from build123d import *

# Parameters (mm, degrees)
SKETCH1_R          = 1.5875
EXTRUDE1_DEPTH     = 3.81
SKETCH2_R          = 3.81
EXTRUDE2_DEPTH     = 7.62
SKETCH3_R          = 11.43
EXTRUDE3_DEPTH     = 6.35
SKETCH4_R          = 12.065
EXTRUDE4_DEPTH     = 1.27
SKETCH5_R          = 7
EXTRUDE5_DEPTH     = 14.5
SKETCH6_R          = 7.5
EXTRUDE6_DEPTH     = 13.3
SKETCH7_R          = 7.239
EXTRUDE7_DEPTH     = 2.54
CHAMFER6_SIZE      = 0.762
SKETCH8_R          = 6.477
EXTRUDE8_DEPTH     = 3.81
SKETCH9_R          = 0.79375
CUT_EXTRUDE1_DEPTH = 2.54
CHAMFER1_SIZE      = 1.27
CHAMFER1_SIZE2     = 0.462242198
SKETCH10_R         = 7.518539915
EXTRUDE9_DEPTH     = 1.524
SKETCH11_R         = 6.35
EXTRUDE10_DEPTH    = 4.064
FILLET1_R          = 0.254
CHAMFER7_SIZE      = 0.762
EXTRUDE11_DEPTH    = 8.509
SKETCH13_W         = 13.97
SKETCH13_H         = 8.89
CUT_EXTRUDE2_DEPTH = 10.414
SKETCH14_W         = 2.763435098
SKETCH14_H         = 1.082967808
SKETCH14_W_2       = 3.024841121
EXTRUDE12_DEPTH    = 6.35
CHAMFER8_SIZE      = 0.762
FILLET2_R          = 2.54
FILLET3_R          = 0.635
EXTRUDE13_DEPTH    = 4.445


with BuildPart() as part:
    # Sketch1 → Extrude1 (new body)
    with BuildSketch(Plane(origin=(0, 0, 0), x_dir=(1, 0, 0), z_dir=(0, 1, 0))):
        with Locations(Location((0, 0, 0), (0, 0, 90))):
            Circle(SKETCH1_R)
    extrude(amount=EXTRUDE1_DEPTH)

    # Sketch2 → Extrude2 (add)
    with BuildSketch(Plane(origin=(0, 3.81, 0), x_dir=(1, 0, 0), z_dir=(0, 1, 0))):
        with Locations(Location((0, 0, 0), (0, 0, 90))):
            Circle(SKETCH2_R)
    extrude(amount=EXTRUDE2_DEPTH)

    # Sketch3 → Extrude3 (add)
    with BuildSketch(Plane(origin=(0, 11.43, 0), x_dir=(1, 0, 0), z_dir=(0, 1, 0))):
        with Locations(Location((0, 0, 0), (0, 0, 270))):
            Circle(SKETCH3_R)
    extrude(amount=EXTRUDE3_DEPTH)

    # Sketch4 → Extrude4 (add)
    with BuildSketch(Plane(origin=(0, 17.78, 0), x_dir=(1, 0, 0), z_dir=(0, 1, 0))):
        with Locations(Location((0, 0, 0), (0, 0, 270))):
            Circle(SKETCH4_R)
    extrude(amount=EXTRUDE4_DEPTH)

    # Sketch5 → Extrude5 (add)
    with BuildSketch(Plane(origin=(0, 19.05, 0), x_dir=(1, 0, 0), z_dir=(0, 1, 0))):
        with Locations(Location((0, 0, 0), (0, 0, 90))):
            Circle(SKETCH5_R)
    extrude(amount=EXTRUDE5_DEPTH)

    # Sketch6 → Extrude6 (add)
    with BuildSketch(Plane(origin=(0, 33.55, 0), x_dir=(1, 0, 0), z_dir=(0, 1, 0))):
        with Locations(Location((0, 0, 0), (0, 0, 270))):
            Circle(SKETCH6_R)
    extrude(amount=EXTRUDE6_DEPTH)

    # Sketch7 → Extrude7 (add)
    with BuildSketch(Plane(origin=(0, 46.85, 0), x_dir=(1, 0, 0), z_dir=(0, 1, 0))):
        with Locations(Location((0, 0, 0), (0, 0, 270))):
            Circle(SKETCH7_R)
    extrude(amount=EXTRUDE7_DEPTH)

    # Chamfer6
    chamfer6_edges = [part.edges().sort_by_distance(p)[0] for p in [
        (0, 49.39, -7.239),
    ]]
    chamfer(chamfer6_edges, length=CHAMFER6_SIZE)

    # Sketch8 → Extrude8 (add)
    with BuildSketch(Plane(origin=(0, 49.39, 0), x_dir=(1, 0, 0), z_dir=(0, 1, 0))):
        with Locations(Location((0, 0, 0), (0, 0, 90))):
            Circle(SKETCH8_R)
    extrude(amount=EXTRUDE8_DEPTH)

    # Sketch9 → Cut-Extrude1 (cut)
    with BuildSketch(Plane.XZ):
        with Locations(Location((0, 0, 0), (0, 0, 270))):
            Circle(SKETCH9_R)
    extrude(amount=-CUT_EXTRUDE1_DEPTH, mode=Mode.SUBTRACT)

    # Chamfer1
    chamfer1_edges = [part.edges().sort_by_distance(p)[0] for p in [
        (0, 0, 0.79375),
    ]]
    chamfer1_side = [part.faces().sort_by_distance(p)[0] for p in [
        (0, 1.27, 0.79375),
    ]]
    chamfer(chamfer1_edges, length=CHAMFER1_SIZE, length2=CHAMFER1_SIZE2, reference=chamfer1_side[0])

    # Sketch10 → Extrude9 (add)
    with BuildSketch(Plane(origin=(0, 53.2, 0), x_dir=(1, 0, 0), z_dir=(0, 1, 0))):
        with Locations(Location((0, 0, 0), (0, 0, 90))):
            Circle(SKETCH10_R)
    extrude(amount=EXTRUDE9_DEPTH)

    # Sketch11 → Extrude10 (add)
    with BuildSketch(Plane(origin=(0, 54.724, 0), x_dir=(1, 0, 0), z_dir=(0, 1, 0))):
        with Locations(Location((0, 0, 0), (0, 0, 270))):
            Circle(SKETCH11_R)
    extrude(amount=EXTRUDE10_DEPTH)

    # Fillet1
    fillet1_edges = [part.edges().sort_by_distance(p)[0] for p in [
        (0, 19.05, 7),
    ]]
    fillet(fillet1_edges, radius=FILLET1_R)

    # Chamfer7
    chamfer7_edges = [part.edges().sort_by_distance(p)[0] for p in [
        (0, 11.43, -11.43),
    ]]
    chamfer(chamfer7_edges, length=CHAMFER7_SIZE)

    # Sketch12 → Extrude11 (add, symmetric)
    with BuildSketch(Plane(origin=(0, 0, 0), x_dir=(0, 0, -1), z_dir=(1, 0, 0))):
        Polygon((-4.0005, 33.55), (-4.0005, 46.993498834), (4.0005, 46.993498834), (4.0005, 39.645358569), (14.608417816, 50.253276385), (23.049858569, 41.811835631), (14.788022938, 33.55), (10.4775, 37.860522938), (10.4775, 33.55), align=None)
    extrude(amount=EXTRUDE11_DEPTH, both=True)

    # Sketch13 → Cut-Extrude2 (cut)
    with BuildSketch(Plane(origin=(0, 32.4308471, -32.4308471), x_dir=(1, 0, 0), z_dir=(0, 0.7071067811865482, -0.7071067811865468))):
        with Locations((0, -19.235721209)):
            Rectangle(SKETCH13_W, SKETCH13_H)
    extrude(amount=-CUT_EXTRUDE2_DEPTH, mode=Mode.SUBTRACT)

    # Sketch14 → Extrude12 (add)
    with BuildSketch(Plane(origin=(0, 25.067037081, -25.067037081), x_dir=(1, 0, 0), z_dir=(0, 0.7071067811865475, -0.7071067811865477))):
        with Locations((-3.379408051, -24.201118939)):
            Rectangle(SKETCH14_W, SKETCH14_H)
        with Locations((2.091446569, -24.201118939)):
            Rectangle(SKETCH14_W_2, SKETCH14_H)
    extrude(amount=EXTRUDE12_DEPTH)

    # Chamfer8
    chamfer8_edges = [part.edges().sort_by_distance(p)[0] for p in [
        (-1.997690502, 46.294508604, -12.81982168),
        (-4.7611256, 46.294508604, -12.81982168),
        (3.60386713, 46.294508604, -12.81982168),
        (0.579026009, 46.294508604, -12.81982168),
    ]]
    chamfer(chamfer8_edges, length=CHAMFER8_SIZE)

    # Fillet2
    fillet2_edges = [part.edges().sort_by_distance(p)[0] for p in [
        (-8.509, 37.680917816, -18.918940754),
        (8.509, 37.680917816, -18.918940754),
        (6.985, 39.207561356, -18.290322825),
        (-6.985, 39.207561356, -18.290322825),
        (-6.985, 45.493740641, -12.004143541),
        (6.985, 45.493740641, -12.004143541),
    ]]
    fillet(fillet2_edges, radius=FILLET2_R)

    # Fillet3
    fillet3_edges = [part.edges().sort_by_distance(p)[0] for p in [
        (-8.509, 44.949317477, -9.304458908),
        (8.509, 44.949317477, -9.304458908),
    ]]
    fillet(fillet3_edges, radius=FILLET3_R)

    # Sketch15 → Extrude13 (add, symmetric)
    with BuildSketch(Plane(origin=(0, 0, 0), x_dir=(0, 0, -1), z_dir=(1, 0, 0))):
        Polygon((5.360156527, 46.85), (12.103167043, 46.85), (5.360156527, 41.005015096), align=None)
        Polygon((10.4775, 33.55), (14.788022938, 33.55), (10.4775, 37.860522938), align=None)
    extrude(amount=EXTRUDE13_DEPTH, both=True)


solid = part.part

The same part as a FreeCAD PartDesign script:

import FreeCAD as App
import Part
import Sketcher

V = App.Vector
Q = App.Units.Quantity


def edges_at(feature, points):
    """Names of the edges that pass closest to the given points."""
    edges = feature.Shape.Edges
    near = lambda p: min(range(len(edges)), key=lambda i: edges[i].distToShape(Part.Vertex(*p))[0])
    return sorted({f"Edge{near(p) + 1}" for p in points})


def add_polygon(sketch, points):
    """Adds a closed chain of lines whose ends are joined by coincident constraints."""
    first, n = sketch.GeometryCount, len(points)
    for a, b in zip(points, points[1:] + points[:1]):
        sketch.addGeometry(Part.LineSegment(App.Vector(*a, 0), App.Vector(*b, 0)), False)
    for i in range(n):
        sketch.addConstraint(Sketcher.Constraint("Coincident", first + i, 2, first + (i + 1) % n, 1))

doc = App.newDocument("Part")
body = doc.addObject("PartDesign::Body", "Body")

sketch1 = doc.addObject("Sketcher::SketchObject", "Sketch")
body.addObject(sketch1)
sketch1.AttachmentSupport = (doc.XZ_Plane, [""])
sketch1.MapMode = "FlatFace"
sketch1.addGeometry(Part.Circle(V(0, 0, 0), V(0, 0, 1), 1.6), False)
sketch1.addConstraint(Sketcher.Constraint("Coincident", 0, 3, -1, 1))
sketch1.addConstraint(Sketcher.Constraint("Diameter", 0, Q("0.125 in")))
pad1 = doc.addObject("PartDesign::Pad", "Pad")
body.addObject(pad1)
pad1.Profile = sketch1
pad1.Length = Q("0.15 in")
pad1.Reversed = True

sketch2 = doc.addObject("Sketcher::SketchObject", "Sketch001")
body.addObject(sketch2)
sketch2.AttachmentSupport = (doc.XZ_Plane, [""])
sketch2.MapMode = "FlatFace"
sketch2.AttachmentOffset = App.Placement(V(0, 0, -0.15 * 25.4), App.Rotation())
sketch2.addGeometry(Part.Circle(V(0, 0, 0), V(0, 0, 1), 3.8), False)
sketch2.addConstraint(Sketcher.Constraint("Coincident", 0, 3, -1, 1))
sketch2.addConstraint(Sketcher.Constraint("Diameter", 0, Q("0.3 in")))
pad2 = doc.addObject("PartDesign::Pad", "Pad001")
body.addObject(pad2)
pad2.Profile = sketch2
pad2.Length = Q("0.3 in")
pad2.Reversed = True

sketch3 = doc.addObject("Sketcher::SketchObject", "Sketch002")
body.addObject(sketch3)
sketch3.AttachmentSupport = (doc.XZ_Plane, [""])
sketch3.MapMode = "FlatFace"
sketch3.AttachmentOffset = App.Placement(V(0, 0, -0.45 * 25.4), App.Rotation())
sketch3.addGeometry(Part.Circle(V(0, 0, 0), V(0, 0, 1), 11), False)
sketch3.addConstraint(Sketcher.Constraint("Coincident", 0, 3, -1, 1))
sketch3.addConstraint(Sketcher.Constraint("Diameter", 0, Q("0.9 in")))
pad3 = doc.addObject("PartDesign::Pad", "Pad002")
body.addObject(pad3)
pad3.Profile = sketch3
pad3.Length = Q("0.25 in")
pad3.Reversed = True

sketch4 = doc.addObject("Sketcher::SketchObject", "Sketch003")
body.addObject(sketch4)
sketch4.AttachmentSupport = (doc.XZ_Plane, [""])
sketch4.MapMode = "FlatFace"
sketch4.AttachmentOffset = App.Placement(V(0, 0, -0.7 * 25.4), App.Rotation())
sketch4.addGeometry(Part.Circle(V(0, 0, 0), V(0, 0, 1), 12), False)
sketch4.addConstraint(Sketcher.Constraint("Coincident", 0, 3, -1, 1))
sketch4.addConstraint(Sketcher.Constraint("Diameter", 0, Q("0.95 in")))
pad4 = doc.addObject("PartDesign::Pad", "Pad003")
body.addObject(pad4)
pad4.Profile = sketch4
pad4.Length = Q("0.05 in")
pad4.Reversed = True

sketch5 = doc.addObject("Sketcher::SketchObject", "Sketch004")
body.addObject(sketch5)
sketch5.AttachmentSupport = (doc.XZ_Plane, [""])
sketch5.MapMode = "FlatFace"
sketch5.AttachmentOffset = App.Placement(V(0, 0, -0.75 * 25.4), App.Rotation())
sketch5.addGeometry(Part.Circle(V(0, 0, 0), V(0, 0, 1), 7), False)
sketch5.addConstraint(Sketcher.Constraint("Coincident", 0, 3, -1, 1))
sketch5.addConstraint(Sketcher.Constraint("Diameter", 0, Q("14 mm")))
pad5 = doc.addObject("PartDesign::Pad", "Pad004")
body.addObject(pad5)
pad5.Profile = sketch5
pad5.Length = 14.5
pad5.Reversed = True

sketch6 = doc.addObject("Sketcher::SketchObject", "Sketch005")
body.addObject(sketch6)
sketch6.AttachmentSupport = (doc.XZ_Plane, [""])
sketch6.MapMode = "FlatFace"
sketch6.AttachmentOffset = App.Placement(V(0, 0, -33.55), App.Rotation())
sketch6.addGeometry(Part.Circle(V(0, 0, 0), V(0, 0, 1), 8), False)
sketch6.addConstraint(Sketcher.Constraint("Coincident", 0, 3, -1, 1))
sketch6.addConstraint(Sketcher.Constraint("Diameter", 0, Q("15 mm")))
pad6 = doc.addObject("PartDesign::Pad", "Pad005")
body.addObject(pad6)
pad6.Profile = sketch6
pad6.Length = 13.3
pad6.Reversed = True

sketch7 = doc.addObject("Sketcher::SketchObject", "Sketch006")
body.addObject(sketch7)
sketch7.AttachmentSupport = (doc.XZ_Plane, [""])
sketch7.MapMode = "FlatFace"
sketch7.AttachmentOffset = App.Placement(V(0, 0, -46.85), App.Rotation())
sketch7.addGeometry(Part.Circle(V(0, 0, 0), V(0, 0, 1), 7), False)
sketch7.addConstraint(Sketcher.Constraint("Coincident", 0, 3, -1, 1))
sketch7.addConstraint(Sketcher.Constraint("Diameter", 0, Q("0.57 in")))
pad7 = doc.addObject("PartDesign::Pad", "Pad006")
body.addObject(pad7)
pad7.Profile = sketch7
pad7.Length = Q("0.1 in")
pad7.Reversed = True
doc.recompute()

chamfer = doc.addObject("PartDesign::Chamfer", "Chamfer")
body.addObject(chamfer)
chamfer.Base = (pad7, edges_at(pad7, [(0, 49.39, -7.239)]))
chamfer.Size = Q("0.03 in")

sketch8 = doc.addObject("Sketcher::SketchObject", "Sketch007")
body.addObject(sketch8)
sketch8.AttachmentSupport = (doc.XZ_Plane, [""])
sketch8.MapMode = "FlatFace"
sketch8.AttachmentOffset = App.Placement(V(0, 0, -49.39), App.Rotation())
sketch8.addGeometry(Part.Circle(V(0, 0, 0), V(0, 0, 1), 6), False)
sketch8.addConstraint(Sketcher.Constraint("Coincident", 0, 3, -1, 1))
sketch8.addConstraint(Sketcher.Constraint("Diameter", 0, Q("0.51 in")))
pad8 = doc.addObject("PartDesign::Pad", "Pad007")
body.addObject(pad8)
pad8.Profile = sketch8
pad8.Length = Q("0.15 in")
pad8.Reversed = True

sketch9 = doc.addObject("Sketcher::SketchObject", "Sketch008")
body.addObject(sketch9)
sketch9.AttachmentSupport = (doc.XZ_Plane, [""])
sketch9.MapMode = "FlatFace"
sketch9.addGeometry(Part.Circle(V(0, 0, 0), V(0, 0, 1), 0.8), False)
sketch9.addConstraint(Sketcher.Constraint("Coincident", 0, 3, -1, 1))
sketch9.addConstraint(Sketcher.Constraint("Diameter", 0, Q("0.0625 in")))
pocket1 = doc.addObject("PartDesign::Pocket", "Pocket")
body.addObject(pocket1)
pocket1.Profile = sketch9
pocket1.Length = Q("0.1 in")
doc.recompute()

chamfer2 = doc.addObject("PartDesign::Chamfer", "Chamfer001")
body.addObject(chamfer2)
chamfer2.Base = (pocket1, edges_at(pocket1, [(0, 0, 0.794)]))
chamfer2.ChamferType = "Two distances"
chamfer2.Size = Q("0.05 in")
chamfer2.Size2 = 0.462242
chamfer2.FlipDirection = True

sketch10 = doc.addObject("Sketcher::SketchObject", "Sketch009")
body.addObject(sketch10)
sketch10.AttachmentSupport = (doc.XZ_Plane, [""])
sketch10.MapMode = "FlatFace"
sketch10.AttachmentOffset = App.Placement(V(0, 0, -53.2), App.Rotation())
sketch10.addGeometry(Part.Circle(V(0, 0, 0), V(0, 0, 1), 8), False)
sketch10.addConstraint(Sketcher.Constraint("Coincident", 0, 3, -1, 1))
sketch10.addConstraint(Sketcher.Constraint("Diameter", 0, Q("15.03708 mm")))
pad9 = doc.addObject("PartDesign::Pad", "Pad008")
body.addObject(pad9)
pad9.Profile = sketch10
pad9.Length = Q("0.06 in")
pad9.Reversed = True

sketch11 = doc.addObject("Sketcher::SketchObject", "Sketch010")
body.addObject(sketch11)
sketch11.AttachmentSupport = (doc.XZ_Plane, [""])
sketch11.MapMode = "FlatFace"
sketch11.AttachmentOffset = App.Placement(V(0, 0, -54.724), App.Rotation())
sketch11.addGeometry(Part.Circle(V(0, 0, 0), V(0, 0, 1), 6), False)
sketch11.addConstraint(Sketcher.Constraint("Coincident", 0, 3, -1, 1))
sketch11.addConstraint(Sketcher.Constraint("Diameter", 0, Q("0.5 in")))
pad10 = doc.addObject("PartDesign::Pad", "Pad009")
body.addObject(pad10)
pad10.Profile = sketch11
pad10.Length = Q("0.16 in")
pad10.Reversed = True
doc.recompute()

fillet = doc.addObject("PartDesign::Fillet", "Fillet")
body.addObject(fillet)
fillet.Base = (pad10, edges_at(pad10, [(0, 19.05, 7)]))
fillet.Radius = Q("0.01 in")
doc.recompute()

chamfer3 = doc.addObject("PartDesign::Chamfer", "Chamfer002")
body.addObject(chamfer3)
chamfer3.Base = (fillet, edges_at(fillet, [(0, 11.43, -11.43)]))
chamfer3.Size = Q("0.03 in")

sketch12 = doc.addObject("Sketcher::SketchObject", "Sketch011")
body.addObject(sketch12)
sketch12.AttachmentSupport = (doc.YZ_Plane, [""])
sketch12.MapMode = "FlatFace"
add_polygon(sketch12, [(47, 4), (33.5, 4), (33.5, -10.5), (37.9, -10.5), (33.5, -14.8), (41.8, -23), (50.3, -14.6), (39.6, -4), (47, -4)])
sketch12.addConstraint(Sketcher.Constraint("Horizontal", 0))
sketch12.addConstraint(Sketcher.Constraint("Vertical", 1))
sketch12.addConstraint(Sketcher.Constraint("Horizontal", 2))
sketch12.addConstraint(Sketcher.Constraint("Horizontal", 7))
sketch12.addConstraint(Sketcher.Constraint("Vertical", 8))
sketch12.addConstraint(Sketcher.Constraint("Perpendicular", 3, 4))
sketch12.addConstraint(Sketcher.Constraint("Perpendicular", 4, 5))
sketch12.addConstraint(Sketcher.Constraint("Perpendicular", 5, 6))
sketch12.addConstraint(Sketcher.Constraint("Vertical", 1, 2, 3, 2))
sketch12.addConstraint(Sketcher.Constraint("Angle", 3, Q("-135 deg")))
sketch12.addConstraint(Sketcher.Constraint("DistanceY", 1, 2, 1, 1, Q("0.57 in")))
sketch12.addConstraint(Sketcher.Constraint("Distance", 3, Q("0.24 in")))
sketch12.addConstraint(Sketcher.Constraint("Distance", 4, Q("0.46 in")))
sketch12.addConstraint(Sketcher.Constraint("Distance", 5, Q("0.47 in")))
sketch12.addConstraint(Sketcher.Constraint("DistanceY", 8, 1, 8, 2, Q("0.315 in")))
sketch12.addConstraint(Sketcher.Constraint("DistanceX", 0, 2, 0, 1, Q("13.443499 mm")))
sketch12.addConstraint(Sketcher.Constraint("DistanceY", -1, 1, 0, 2, Q("0.1575 in")))
sketch12.addConstraint(Sketcher.Constraint("DistanceX", -1, 1, 0, 2, Q("33.55 mm")))
pad11 = doc.addObject("PartDesign::Pad", "Pad010")
body.addObject(pad11)
pad11.Profile = sketch12
pad11.Length = Q("0.67 in")
pad11.Midplane = True

sketch13 = doc.addObject("Sketcher::SketchObject", "Sketch012")
body.addObject(sketch13)
sketch13.Placement = App.Placement(V(0, 32.430847, -32.430847), App.Rotation(V(1, 0, 0), V(0, -0.707106781, -0.707106781), V(0, 0.707106781, -0.707106781), "ZXY"))
add_polygon(sketch13, [(-7, -15), (-7, -24), (7, -24), (7, -15)])
sketch13.addConstraint(Sketcher.Constraint("Vertical", 0))
sketch13.addConstraint(Sketcher.Constraint("Horizontal", 1))
sketch13.addConstraint(Sketcher.Constraint("Vertical", 2))
sketch13.addConstraint(Sketcher.Constraint("Horizontal", 3))
sketch13.addConstraint(Sketcher.Constraint("DistanceX", 1, 1, 1, 2, Q("0.55 in")))
sketch13.addConstraint(Sketcher.Constraint("DistanceY", 0, 2, 0, 1, Q("0.35 in")))
sketch13.addConstraint(Sketcher.Constraint("DistanceX", 0, 2, -1, 1, Q("0.275 in")))
sketch13.addConstraint(Sketcher.Constraint("DistanceY", 0, 2, -1, 1, Q("23.680721 mm")))
pocket2 = doc.addObject("PartDesign::Pocket", "Pocket001")
body.addObject(pocket2)
pocket2.Profile = sketch13
pocket2.Length = Q("0.41 in")

sketch14 = doc.addObject("Sketcher::SketchObject", "Sketch013")
body.addObject(sketch14)
sketch14.Placement = App.Placement(V(0, 25.067037, -25.067037), App.Rotation(V(1, 0, 0), V(0, -0.707106781, -0.707106781), V(0, 0.707106781, -0.707106781), "ZXY"))
add_polygon(sketch14, [(-4.8, -23.7), (-4.8, -24.7), (-2, -24.7), (-2, -23.7)])
add_polygon(sketch14, [(0.6, -23.7), (0.6, -24.7), (3.6, -24.7), (3.6, -23.7)])
sketch14.addConstraint(Sketcher.Constraint("Vertical", 0))
sketch14.addConstraint(Sketcher.Constraint("Horizontal", 1))
sketch14.addConstraint(Sketcher.Constraint("Vertical", 2))
sketch14.addConstraint(Sketcher.Constraint("Horizontal", 3))
sketch14.addConstraint(Sketcher.Constraint("Vertical", 4))
sketch14.addConstraint(Sketcher.Constraint("Horizontal", 5))
sketch14.addConstraint(Sketcher.Constraint("Vertical", 6))
sketch14.addConstraint(Sketcher.Constraint("Horizontal", 7))
sketch14.addConstraint(Sketcher.Constraint("Horizontal", 1, 2, 4, 2))
sketch14.addConstraint(Sketcher.Constraint("Horizontal", 3, 2, 6, 2))
sketch14.addConstraint(Sketcher.Constraint("DistanceX", 5, 1, 5, 2, Q("3.024841 mm")))
sketch14.addConstraint(Sketcher.Constraint("DistanceX", 1, 1, 1, 2, Q("2.763435 mm")))
sketch14.addConstraint(Sketcher.Constraint("DistanceY", 0, 2, 0, 1, Q("1.082968 mm")))
sketch14.addConstraint(Sketcher.Constraint("DistanceX", 1, 2, -1, 1, Q("1.997691 mm")))
sketch14.addConstraint(Sketcher.Constraint("DistanceX", 0, 2, 4, 2, Q("5.340152 mm")))
sketch14.addConstraint(Sketcher.Constraint("DistanceY", 0, 2, -1, 1, Q("24.742603 mm")))
pad12 = doc.addObject("PartDesign::Pad", "Pad011")
body.addObject(pad12)
pad12.Profile = sketch14
pad12.Length = Q("0.25 in")
doc.recompute()

chamfer4 = doc.addObject("PartDesign::Chamfer", "Chamfer003")
body.addObject(chamfer4)
chamfer4.Base = (pad12, edges_at(pad12, [
    (-1.998, 46.295, -12.82),
    (-4.761, 46.295, -12.82),
    (3.604, 46.295, -12.82),
    (0.579, 46.295, -12.82),
]))
chamfer4.Size = Q("0.03 in")
doc.recompute()

fillet2 = doc.addObject("PartDesign::Fillet", "Fillet001")
body.addObject(fillet2)
fillet2.Base = (chamfer4, edges_at(chamfer4, [
    (-8.509, 37.681, -18.919),
    (8.509, 37.681, -18.919),
    (6.985, 39.208, -18.29),
    (-6.985, 39.208, -18.29),
    (-6.985, 45.494, -12.004),
    (6.985, 45.494, -12.004),
]))
fillet2.Radius = Q("0.1 in")
doc.recompute()

fillet3 = doc.addObject("PartDesign::Fillet", "Fillet002")
body.addObject(fillet3)
fillet3.Base = (fillet2, edges_at(fillet2, [(-8.509, 44.949, -9.304), (8.509, 44.949, -9.304)]))
fillet3.Radius = Q("0.025 in")

sketch15 = doc.addObject("Sketcher::SketchObject", "Sketch014")
body.addObject(sketch15)
sketch15.AttachmentSupport = (doc.YZ_Plane, [""])
sketch15.MapMode = "FlatFace"
add_polygon(sketch15, [(46.9, -12.1), (46.9, -5.4), (41, -5.4)])
add_polygon(sketch15, [(33.5, -10.5), (33.5, -14.8), (37.9, -10.5)])
sketch15.addConstraint(Sketcher.Constraint("Vertical", 0))
sketch15.addConstraint(Sketcher.Constraint("Horizontal", 1))
sketch15.addConstraint(Sketcher.Constraint("Vertical", 3))
sketch15.addConstraint(Sketcher.Constraint("Horizontal", 5))
sketch15.addConstraint(Sketcher.Constraint("Equal", 5, 3))
sketch15.addConstraint(Sketcher.Constraint("Distance", 4, Q("0.24 in")))
sketch15.addConstraint(Sketcher.Constraint("DistanceY", 4, 2, -1, 1, Q("0.4125 in")))
sketch15.addConstraint(Sketcher.Constraint("DistanceY", 0, 1, 0, 2, Q("6.743011 mm")))
sketch15.addConstraint(Sketcher.Constraint("DistanceX", -1, 1, 0, 2, Q("46.85 mm")))
sketch15.addConstraint(Sketcher.Constraint("DistanceX", -1, 1, 3, 2, Q("33.55 mm")))
sketch15.addConstraint(Sketcher.Constraint("Distance", 2, Q("8.923679 mm")))
sketch15.addConstraint(Sketcher.Constraint("DistanceY", 0, 2, -1, 1, Q("5.360157 mm")))
pad13 = doc.addObject("PartDesign::Pad", "Pad012")
body.addObject(pad13)
pad13.Profile = sketch15
pad13.Length = Q("0.35 in")
pad13.Midplane = True

doc.recompute()
